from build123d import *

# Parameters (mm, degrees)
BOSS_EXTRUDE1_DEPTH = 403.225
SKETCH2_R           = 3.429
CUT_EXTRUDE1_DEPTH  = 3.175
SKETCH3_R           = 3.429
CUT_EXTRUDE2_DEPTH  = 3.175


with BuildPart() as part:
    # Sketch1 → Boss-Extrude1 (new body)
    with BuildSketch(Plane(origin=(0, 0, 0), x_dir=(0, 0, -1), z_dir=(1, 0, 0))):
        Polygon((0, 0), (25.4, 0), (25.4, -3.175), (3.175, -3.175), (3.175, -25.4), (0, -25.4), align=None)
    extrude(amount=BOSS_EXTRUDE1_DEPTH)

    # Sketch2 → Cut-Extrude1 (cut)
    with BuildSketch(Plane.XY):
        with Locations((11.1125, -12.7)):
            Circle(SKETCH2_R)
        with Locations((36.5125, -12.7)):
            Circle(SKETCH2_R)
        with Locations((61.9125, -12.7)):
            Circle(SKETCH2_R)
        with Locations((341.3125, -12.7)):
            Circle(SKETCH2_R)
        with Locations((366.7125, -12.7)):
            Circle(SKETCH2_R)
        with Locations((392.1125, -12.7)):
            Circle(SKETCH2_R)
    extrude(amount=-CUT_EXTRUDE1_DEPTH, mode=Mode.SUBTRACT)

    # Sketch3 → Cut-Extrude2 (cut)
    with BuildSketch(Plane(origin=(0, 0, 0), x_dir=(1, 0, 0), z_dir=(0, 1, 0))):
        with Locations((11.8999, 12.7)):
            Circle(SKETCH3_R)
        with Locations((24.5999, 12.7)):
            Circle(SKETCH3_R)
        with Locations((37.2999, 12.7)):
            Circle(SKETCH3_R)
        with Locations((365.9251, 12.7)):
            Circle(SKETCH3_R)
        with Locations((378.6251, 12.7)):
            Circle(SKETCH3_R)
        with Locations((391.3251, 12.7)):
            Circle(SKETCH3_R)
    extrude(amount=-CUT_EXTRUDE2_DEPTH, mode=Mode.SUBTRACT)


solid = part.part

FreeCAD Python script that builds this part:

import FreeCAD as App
import Part
import Sketcher

V = App.Vector
Q = App.Units.Quantity

doc = App.newDocument("Part")
body = doc.addObject("PartDesign::Body", "Body")

sketch1 = doc.addObject("Sketcher::SketchObject", "Sketch")
body.addObject(sketch1)
sketch1.AttachmentSupport = (doc.YZ_Plane, [""])
sketch1.MapMode = "FlatFace"
sketch1.addGeometry([
    Part.LineSegment(V(0, -25.4, 0), V(0, 0, 0)),
    Part.LineSegment(V(0, 0, 0), V(-25.4, 0, 0)),
    Part.LineSegment(V(-25.4, 0, 0), V(-25.4, -3.175, 0)),
    Part.LineSegment(V(-25.4, -3.175, 0), V(-3.175, -3.175, 0)),
    Part.LineSegment(V(-3.175, -3.175, 0), V(-3.175, -25.4, 0)),
    Part.LineSegment(V(-3.175, -25.4, 0), V(0, -25.4, 0)),
], False)
sketch1.addConstraint([
    Sketcher.Constraint("Coincident", 0, 2, 1, 1),
    Sketcher.Constraint("Coincident", 1, 2, 2, 1),
    Sketcher.Constraint("Coincident", 2, 2, 3, 1),
    Sketcher.Constraint("Coincident", 3, 2, 4, 1),
    Sketcher.Constraint("Coincident", 4, 2, 5, 1),
    Sketcher.Constraint("Coincident", 5, 2, 0, 1),
    Sketcher.Constraint("Vertical", 0),
    Sketcher.Constraint("Horizontal", 1),
    Sketcher.Constraint("Vertical", 2),
    Sketcher.Constraint("Horizontal", 3),
    Sketcher.Constraint("Vertical", 4),
    Sketcher.Constraint("Horizontal", 5),
    Sketcher.Constraint("Coincident", 0, 2, -1, 1),
    Sketcher.Constraint("Equal", 1, 0),
    Sketcher.Constraint("Equal", 5, 2),
    Sketcher.Constraint("DistanceX", 1, 2, 1, 1, Q("1 in")),
    Sketcher.Constraint("DistanceX", 3, 1, 3, 2, Q("0.875 in")),
])
pad1 = doc.addObject("PartDesign::Pad", "Pad")
body.addObject(pad1)
pad1.Profile = sketch1
pad1.Length = Q("15.875 in")

sketch2 = doc.addObject("Sketcher::SketchObject", "Sketch001")
body.addObject(sketch2)
sketch2.AttachmentSupport = (doc.XY_Plane, [""])
sketch2.MapMode = "FlatFace"
sketch2.addGeometry([
    Part.Circle(V(11.1125, -12.7, 0), V(0, 0, 1), 3.429),
    Part.Circle(V(36.5125, -12.7, 0), V(0, 0, 1), 3.429),
    Part.Circle(V(61.9125, -12.7, 0), V(0, 0, 1), 3.429),
    Part.Circle(V(341.3125, -12.7, 0), V(0, 0, 1), 3.429),
    Part.Circle(V(366.7125, -12.7, 0), V(0, 0, 1), 3.429),
    Part.Circle(V(392.1125, -12.7, 0), V(0, 0, 1), 3.429),
], False)
sketch2.addConstraint([
    Sketcher.Constraint("Equal", 0, 1),
    Sketcher.Constraint("Equal", 1, 2),
    Sketcher.Constraint("Equal", 2, 3),
    Sketcher.Constraint("Equal", 3, 4),
    Sketcher.Constraint("Equal", 4, 5),
    Sketcher.Constraint("Horizontal", 0, 3, 1, 3),
    Sketcher.Constraint("Horizontal", 1, 3, 2, 3),
    Sketcher.Constraint("Horizontal", 2, 3, 3, 3),
    Sketcher.Constraint("Horizontal", 3, 3, 4, 3),
    Sketcher.Constraint("Horizontal", 4, 3, 5, 3),
    Sketcher.Constraint("Diameter", 0, Q("0.27 in")),
    Sketcher.Constraint("DistanceX", 0, 3, 1, 3, Q("1 in")),
    Sketcher.Constraint("DistanceX", 1, 3, 2, 3, Q("1 in")),
    Sketcher.Constraint("DistanceX", 2, 3, 3, 3, Q("11 in")),
    Sketcher.Constraint("DistanceX", 3, 3, 4, 3, Q("1 in")),
    Sketcher.Constraint("DistanceX", 4, 3, 5, 3, Q("1 in")),
    Sketcher.Constraint("DistanceY", 0, 3, -1, 1, Q("0.5 in")),
    Sketcher.Constraint("DistanceX", -1, 1, 0, 3, Q("0.4375 in")),
])
pocket1 = doc.addObject("PartDesign::Pocket", "Pocket")
body.addObject(pocket1)
pocket1.Profile = sketch2
pocket1.Length = Q("0.125 in")

sketch3 = doc.addObject("Sketcher::SketchObject", "Sketch002")
body.addObject(sketch3)
sketch3.AttachmentSupport = (doc.XZ_Plane, [""])
sketch3.MapMode = "FlatFace"
sketch3.addGeometry([
    Part.Circle(V(11.8999, -12.7, 0), V(0, 0, 1), 3.429),
    Part.Circle(V(24.5999, -12.7, 0), V(0, 0, 1), 3.429),
    Part.Circle(V(37.2999, -12.7, 0), V(0, 0, 1), 3.429),
    Part.Circle(V(365.9251, -12.7, 0), V(0, 0, 1), 3.429),
    Part.Circle(V(378.6251, -12.7, 0), V(0, 0, 1), 3.429),
    Part.Circle(V(391.3251, -12.7, 0), V(0, 0, 1), 3.429),
], False)
sketch3.addConstraint([
    Sketcher.Constraint("Equal", 0, 1),
    Sketcher.Constraint("Equal", 1, 2),
    Sketcher.Constraint("Equal", 2, 3),
    Sketcher.Constraint("Equal", 3, 4),
    Sketcher.Constraint("Equal", 4, 5),
    Sketcher.Constraint("Horizontal", 0, 3, 1, 3),
    Sketcher.Constraint("Horizontal", 1, 3, 2, 3),
    Sketcher.Constraint("Horizontal", 2, 3, 3, 3),
    Sketcher.Constraint("Horizontal", 3, 3, 4, 3),
    Sketcher.Constraint("Horizontal", 4, 3, 5, 3),
    Sketcher.Constraint("Diameter", 0, Q("0.27 in")),
    Sketcher.Constraint("DistanceX", 0, 3, 2, 3, Q("1 in")),
    Sketcher.Constraint("DistanceX", 3, 3, 5, 3, Q("1 in")),
    Sketcher.Constraint("DistanceY", 0, 3, -1, 1, Q("0.5 in")),
    Sketcher.Constraint("DistanceX", 0, 3, 1, 3, Q("0.5 in")),
    Sketcher.Constraint("DistanceX", 3, 3, 4, 3, Q("0.5 in")),
    Sketcher.Constraint("DistanceX", 2, 3, 3, 3, Q("12.938 in")),
    Sketcher.Constraint("DistanceX", -1, 1, 0, 3, Q("0.4685 in")),
])
pocket2 = doc.addObject("PartDesign::Pocket", "Pocket001")
body.addObject(pocket2)
pocket2.Profile = sketch3
pocket2.Length = Q("0.125 in")
pocket2.Reversed = True

doc.recompute()
